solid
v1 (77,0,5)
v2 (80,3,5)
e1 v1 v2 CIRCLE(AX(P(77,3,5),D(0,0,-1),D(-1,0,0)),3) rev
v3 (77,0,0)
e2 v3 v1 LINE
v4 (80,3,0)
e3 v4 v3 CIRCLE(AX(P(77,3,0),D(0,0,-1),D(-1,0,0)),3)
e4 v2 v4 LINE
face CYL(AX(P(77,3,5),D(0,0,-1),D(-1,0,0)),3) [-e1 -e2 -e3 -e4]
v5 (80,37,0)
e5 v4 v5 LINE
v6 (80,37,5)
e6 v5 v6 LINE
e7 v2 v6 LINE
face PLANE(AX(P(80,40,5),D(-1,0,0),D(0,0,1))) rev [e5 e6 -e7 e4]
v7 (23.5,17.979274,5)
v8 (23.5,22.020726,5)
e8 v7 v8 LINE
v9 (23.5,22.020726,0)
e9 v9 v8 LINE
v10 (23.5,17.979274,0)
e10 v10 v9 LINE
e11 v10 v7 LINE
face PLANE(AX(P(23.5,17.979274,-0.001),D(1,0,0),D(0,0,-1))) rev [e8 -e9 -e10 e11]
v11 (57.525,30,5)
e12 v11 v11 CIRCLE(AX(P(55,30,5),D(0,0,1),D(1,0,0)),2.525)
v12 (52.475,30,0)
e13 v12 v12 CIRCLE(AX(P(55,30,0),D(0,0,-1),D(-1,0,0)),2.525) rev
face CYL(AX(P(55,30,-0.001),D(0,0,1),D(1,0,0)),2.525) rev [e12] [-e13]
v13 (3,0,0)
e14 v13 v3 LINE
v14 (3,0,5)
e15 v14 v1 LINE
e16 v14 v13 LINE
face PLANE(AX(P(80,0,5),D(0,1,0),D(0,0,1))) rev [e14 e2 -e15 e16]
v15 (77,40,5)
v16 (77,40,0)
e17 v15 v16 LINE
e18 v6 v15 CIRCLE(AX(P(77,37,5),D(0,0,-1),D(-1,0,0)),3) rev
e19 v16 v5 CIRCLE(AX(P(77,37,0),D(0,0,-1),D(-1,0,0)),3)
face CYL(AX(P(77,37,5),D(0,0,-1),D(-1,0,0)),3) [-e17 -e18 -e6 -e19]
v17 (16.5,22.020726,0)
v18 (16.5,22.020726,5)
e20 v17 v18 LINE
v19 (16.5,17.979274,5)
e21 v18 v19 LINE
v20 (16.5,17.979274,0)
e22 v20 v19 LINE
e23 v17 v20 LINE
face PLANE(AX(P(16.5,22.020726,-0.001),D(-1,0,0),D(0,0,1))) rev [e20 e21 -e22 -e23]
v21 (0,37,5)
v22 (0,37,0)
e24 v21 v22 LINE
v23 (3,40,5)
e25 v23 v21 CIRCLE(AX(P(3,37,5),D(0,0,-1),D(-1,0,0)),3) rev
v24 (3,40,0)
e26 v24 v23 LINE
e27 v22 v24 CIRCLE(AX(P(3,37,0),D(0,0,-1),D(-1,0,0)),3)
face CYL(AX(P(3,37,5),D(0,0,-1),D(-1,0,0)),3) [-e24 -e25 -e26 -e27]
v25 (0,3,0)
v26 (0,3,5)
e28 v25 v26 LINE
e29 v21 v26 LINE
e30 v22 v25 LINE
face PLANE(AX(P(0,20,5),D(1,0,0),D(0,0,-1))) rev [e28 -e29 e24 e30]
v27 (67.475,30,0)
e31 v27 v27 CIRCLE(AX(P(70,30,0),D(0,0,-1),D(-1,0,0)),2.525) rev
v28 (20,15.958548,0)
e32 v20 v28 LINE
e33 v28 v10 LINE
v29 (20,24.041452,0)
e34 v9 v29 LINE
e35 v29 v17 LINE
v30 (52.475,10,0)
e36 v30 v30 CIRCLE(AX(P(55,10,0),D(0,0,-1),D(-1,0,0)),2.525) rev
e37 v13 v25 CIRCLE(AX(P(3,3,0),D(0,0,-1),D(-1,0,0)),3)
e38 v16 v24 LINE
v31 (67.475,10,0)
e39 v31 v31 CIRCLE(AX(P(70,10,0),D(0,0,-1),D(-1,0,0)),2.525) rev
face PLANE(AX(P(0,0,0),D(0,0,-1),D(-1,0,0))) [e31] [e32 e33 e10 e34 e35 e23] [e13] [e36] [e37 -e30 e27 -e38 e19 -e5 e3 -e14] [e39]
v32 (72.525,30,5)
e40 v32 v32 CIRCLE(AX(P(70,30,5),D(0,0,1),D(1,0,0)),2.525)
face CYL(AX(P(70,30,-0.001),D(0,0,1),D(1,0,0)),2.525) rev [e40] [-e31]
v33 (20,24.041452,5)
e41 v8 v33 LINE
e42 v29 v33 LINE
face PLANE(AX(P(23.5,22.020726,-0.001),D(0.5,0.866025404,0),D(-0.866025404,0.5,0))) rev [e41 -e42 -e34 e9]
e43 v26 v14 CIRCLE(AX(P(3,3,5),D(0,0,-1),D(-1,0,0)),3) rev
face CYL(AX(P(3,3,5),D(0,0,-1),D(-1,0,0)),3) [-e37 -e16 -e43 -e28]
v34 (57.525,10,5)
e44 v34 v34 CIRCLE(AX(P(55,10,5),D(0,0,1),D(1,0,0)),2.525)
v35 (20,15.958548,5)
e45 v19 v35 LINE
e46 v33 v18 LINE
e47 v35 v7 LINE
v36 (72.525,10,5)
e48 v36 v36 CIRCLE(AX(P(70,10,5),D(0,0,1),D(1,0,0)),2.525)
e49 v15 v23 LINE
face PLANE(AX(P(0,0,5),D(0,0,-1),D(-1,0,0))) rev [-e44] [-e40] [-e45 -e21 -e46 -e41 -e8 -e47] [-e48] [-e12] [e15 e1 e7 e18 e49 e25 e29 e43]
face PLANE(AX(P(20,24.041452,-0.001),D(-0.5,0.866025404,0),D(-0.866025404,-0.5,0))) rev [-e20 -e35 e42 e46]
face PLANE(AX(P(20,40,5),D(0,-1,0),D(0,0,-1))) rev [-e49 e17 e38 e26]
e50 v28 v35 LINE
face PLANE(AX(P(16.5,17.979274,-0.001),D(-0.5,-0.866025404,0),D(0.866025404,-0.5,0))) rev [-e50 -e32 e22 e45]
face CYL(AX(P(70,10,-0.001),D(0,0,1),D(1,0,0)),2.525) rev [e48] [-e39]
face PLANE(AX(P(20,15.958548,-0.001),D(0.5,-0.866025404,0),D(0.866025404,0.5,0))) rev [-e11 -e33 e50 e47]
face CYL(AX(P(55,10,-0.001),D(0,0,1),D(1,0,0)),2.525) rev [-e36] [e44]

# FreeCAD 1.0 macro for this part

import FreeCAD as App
import Part
import Sketcher
from FreeCAD import Vector
Q = App.Units.Quantity


def edges_at(feature, points):
    """Names of the edges that pass closest to the given points."""
    edges = feature.Shape.Edges
    near = lambda p: min(range(len(edges)), key=lambda i: edges[i].distToShape(Part.Vertex(*p))[0])
    return sorted({f"Edge{near(p) + 1}" for p in points})


def add_polygon(sketch, points):
    """Adds a closed chain of lines whose ends are joined by coincident constraints."""
    first, n = sketch.GeometryCount, len(points)
    for a, b in zip(points, points[1:] + points[:1]):
        sketch.addGeometry(Part.LineSegment(App.Vector(*a, 0), App.Vector(*b, 0)), False)
    for i in range(n):
        sketch.addConstraint(Sketcher.Constraint("Coincident", first + i, 2, first + (i + 1) % n, 1))

doc = App.newDocument("Part")
body = doc.addObject("PartDesign::Body", "Body")

sketch1 = body.newObject("Sketcher::SketchObject", "Sketch")
sketch1.AttachmentSupport = (doc.getObject("XY_Plane"), [""])
sketch1.MapMode = "FlatFace"
add_polygon(sketch1, [(80, 40), (0, 40), (0, 0), (80, 0)])
sketch1.addConstraint(Sketcher.Constraint("Horizontal", 0))
sketch1.addConstraint(Sketcher.Constraint("Vertical", 1))
sketch1.addConstraint(Sketcher.Constraint("Horizontal", 2))
sketch1.addConstraint(Sketcher.Constraint("Vertical", 3))
sketch1.addConstraint(Sketcher.Constraint("Coincident", 1, 2, -1, 1))
sketch1.addConstraint(Sketcher.Constraint("DistanceX", 0, 2, 0, 1, 80.0))
sketch1.addConstraint(Sketcher.Constraint("DistanceY", 1, 2, 1, 1, 40.0))
pad1 = body.newObject("PartDesign::Pad", "Pad")
pad1.Profile = sketch1
pad1.Length = 5

sketch2 = body.newObject("Sketcher::SketchObject", "Sketch001")
sketch2.AttachmentSupport = (doc.getObject("XY_Plane"), [""])
sketch2.MapMode = "FlatFace"
sketch2.AttachmentOffset = App.Placement(Vector(0, 0, 5), App.Rotation())
add_polygon(sketch2, [(20, 16), (23.5, 18), (23.5, 22), (20, 24), (16.5, 22), (16.5, 18)])
sketch2.addConstraint(Sketcher.Constraint("Vertical", 1))
sketch2.addConstraint(Sketcher.Constraint("Vertical", 4))
sketch2.addConstraint(Sketcher.Constraint("Parallel", 0, 3))
sketch2.addConstraint(Sketcher.Constraint("Parallel", 2, 5))
sketch2.addConstraint(Sketcher.Constraint("Horizontal", 1, 2, 3, 2))
sketch2.addConstraint(Sketcher.Constraint("Horizontal", 0, 2, 4, 2))
sketch2.addConstraint(Sketcher.Constraint("Vertical", 2, 2, 5, 2))
sketch2.addConstraint(Sketcher.Constraint("Angle", 0, Q("30 deg")))
sketch2.addConstraint(Sketcher.Constraint("DistanceX", -1, 1, 2, 2, 20.0))
sketch2.addConstraint(Sketcher.Constraint("DistanceX", 3, 2, 1, 2, 7.0))
sketch2.addConstraint(Sketcher.Constraint("DistanceY", 1, 1, 1, 2, 4.041452))
sketch2.addConstraint(Sketcher.Constraint("DistanceY", -1, 1, 2, 2, 24.041452))
pocket1 = body.newObject("PartDesign::Pocket", "Pocket")
pocket1.Profile = sketch2
pocket1.Type = "UpToFirst"

sketch3 = body.newObject("Sketcher::SketchObject", "Sketch002")
sketch3.AttachmentSupport = (doc.getObject("XY_Plane"), [""])
sketch3.MapMode = "FlatFace"
sketch3.AttachmentOffset = App.Placement(Vector(0, 0, 5), App.Rotation())
sketch3.addGeometry(Part.Circle(Vector(55, 30, 0), Vector(0, 0, 1), 2.5), False)
sketch3.addConstraint(Sketcher.Constraint("Diameter", 0, 5.05))
sketch3.addConstraint(Sketcher.Constraint("DistanceX", -1, 1, 0, 3, 55.0))
sketch3.addConstraint(Sketcher.Constraint("DistanceY", -1, 1, 0, 3, 30.0))
pocket2 = body.newObject("PartDesign::Pocket", "Pocket001")
pocket2.Profile = sketch3
pocket2.Type = "UpToFirst"

sketch4 = body.newObject("Sketcher::SketchObject", "Sketch003")
sketch4.AttachmentSupport = (doc.getObject("XY_Plane"), [""])
sketch4.MapMode = "FlatFace"
sketch4.AttachmentOffset = App.Placement(Vector(0, 0, 5), App.Rotation())
sketch4.addGeometry(Part.Circle(Vector(55, 10, 0), Vector(0, 0, 1), 2.5), False)
sketch4.addConstraint(Sketcher.Constraint("Diameter", 0, 5.05))
sketch4.addConstraint(Sketcher.Constraint("DistanceX", -1, 1, 0, 3, 55.0))
sketch4.addConstraint(Sketcher.Constraint("DistanceY", -1, 1, 0, 3, 10.0))
pocket3 = body.newObject("PartDesign::Pocket", "Pocket002")
pocket3.Profile = sketch4
pocket3.Type = "UpToFirst"

sketch5 = body.newObject("Sketcher::SketchObject", "Sketch004")
sketch5.AttachmentSupport = (doc.getObject("XY_Plane"), [""])
sketch5.MapMode = "FlatFace"
sketch5.AttachmentOffset = App.Placement(Vector(0, 0, 5), App.Rotation())
sketch5.addGeometry(Part.Circle(Vector(70, 30, 0), Vector(0, 0, 1), 2.5), False)
sketch5.addConstraint(Sketcher.Constraint("Diameter", 0, 5.05))
sketch5.addConstraint(Sketcher.Constraint("DistanceX", -1, 1, 0, 3, 70.0))
sketch5.addConstraint(Sketcher.Constraint("DistanceY", -1, 1, 0, 3, 30.0))
pocket4 = body.newObject("PartDesign::Pocket", "Pocket003")
pocket4.Profile = sketch5
pocket4.Type = "UpToFirst"

sketch6 = body.newObject("Sketcher::SketchObject", "Sketch005")
sketch6.AttachmentSupport = (doc.getObject("XY_Plane"), [""])
sketch6.MapMode = "FlatFace"
sketch6.AttachmentOffset = App.Placement(Vector(0, 0, 5), App.Rotation())
sketch6.addGeometry(Part.Circle(Vector(70, 10, 0), Vector(0, 0, 1), 2.5), False)
sketch6.addConstraint(Sketcher.Constraint("Diameter", 0, 5.05))
sketch6.addConstraint(Sketcher.Constraint("DistanceX", -1, 1, 0, 3, 70.0))
sketch6.addConstraint(Sketcher.Constraint("DistanceY", -1, 1, 0, 3, 10.0))
pocket5 = body.newObject("PartDesign::Pocket", "Pocket004")
pocket5.Profile = sketch6
pocket5.Type = "UpToFirst"
doc.recompute()

fillet = body.newObject("PartDesign::Fillet", "Fillet")
fillet.Base = (pocket5, edges_at(pocket5, [(80, 40, 2.5), (80, 0, 2.5)]))
fillet.Radius = 3
doc.recompute()

fillet2 = body.newObject("PartDesign::Fillet", "Fillet001")
fillet2.Base = (fillet, edges_at(fillet, [(0, 0, 2.5), (0, 40, 2.5)]))
fillet2.Radius = 3

doc.recompute()
